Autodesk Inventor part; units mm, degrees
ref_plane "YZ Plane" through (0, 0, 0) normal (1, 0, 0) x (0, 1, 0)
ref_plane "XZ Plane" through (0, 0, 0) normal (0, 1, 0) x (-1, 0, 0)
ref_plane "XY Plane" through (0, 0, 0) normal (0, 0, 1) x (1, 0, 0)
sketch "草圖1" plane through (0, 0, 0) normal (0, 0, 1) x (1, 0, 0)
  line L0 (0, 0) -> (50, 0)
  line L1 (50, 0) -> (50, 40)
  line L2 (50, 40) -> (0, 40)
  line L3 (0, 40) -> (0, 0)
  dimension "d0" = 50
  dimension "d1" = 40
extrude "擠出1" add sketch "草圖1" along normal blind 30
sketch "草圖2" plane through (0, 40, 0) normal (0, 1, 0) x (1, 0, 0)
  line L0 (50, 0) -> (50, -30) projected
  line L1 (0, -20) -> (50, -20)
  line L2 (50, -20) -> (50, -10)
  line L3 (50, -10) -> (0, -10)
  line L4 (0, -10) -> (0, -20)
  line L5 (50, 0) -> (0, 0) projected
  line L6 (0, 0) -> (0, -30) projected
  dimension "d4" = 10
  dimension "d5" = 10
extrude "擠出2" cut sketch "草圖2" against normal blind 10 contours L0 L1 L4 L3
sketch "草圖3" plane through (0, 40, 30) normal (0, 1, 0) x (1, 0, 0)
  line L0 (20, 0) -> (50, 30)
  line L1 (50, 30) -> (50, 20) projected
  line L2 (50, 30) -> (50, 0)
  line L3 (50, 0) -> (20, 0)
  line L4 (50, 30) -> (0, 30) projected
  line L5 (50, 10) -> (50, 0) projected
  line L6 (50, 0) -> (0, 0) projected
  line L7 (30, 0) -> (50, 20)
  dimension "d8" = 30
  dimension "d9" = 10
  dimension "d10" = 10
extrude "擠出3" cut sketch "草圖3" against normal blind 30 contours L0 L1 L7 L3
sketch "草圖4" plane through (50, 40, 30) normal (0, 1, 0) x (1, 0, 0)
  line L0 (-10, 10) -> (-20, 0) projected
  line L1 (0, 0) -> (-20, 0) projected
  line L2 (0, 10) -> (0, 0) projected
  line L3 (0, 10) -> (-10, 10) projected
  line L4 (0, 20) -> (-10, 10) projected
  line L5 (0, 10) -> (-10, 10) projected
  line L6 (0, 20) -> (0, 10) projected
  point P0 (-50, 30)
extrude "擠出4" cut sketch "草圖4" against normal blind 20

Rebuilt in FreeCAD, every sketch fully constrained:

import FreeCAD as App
import Part
import Sketcher
from FreeCAD import Vector


def add_polygon(sketch, points):
    """Adds a closed chain of lines whose ends are joined by coincident constraints."""
    first, n = sketch.GeometryCount, len(points)
    for a, b in zip(points, points[1:] + points[:1]):
        sketch.addGeometry(Part.LineSegment(App.Vector(*a, 0), App.Vector(*b, 0)), False)
    for i in range(n):
        sketch.addConstraint(Sketcher.Constraint("Coincident", first + i, 2, first + (i + 1) % n, 1))

doc = App.newDocument("Part")
body = doc.addObject("PartDesign::Body", "Body")

sketch1 = body.newObject("Sketcher::SketchObject", "Sketch")
sketch1.AttachmentSupport = (doc.getObject("XY_Plane"), [""])
sketch1.MapMode = "FlatFace"
add_polygon(sketch1, [(0, 40), (0, 0), (50, 0), (50, 40)])
sketch1.addConstraint([
    Sketcher.Constraint("Vertical", 0),
    Sketcher.Constraint("Horizontal", 1),
    Sketcher.Constraint("Vertical", 2),
    Sketcher.Constraint("Horizontal", 3),
    Sketcher.Constraint("Coincident", 0, 2, -1, 1),
    Sketcher.Constraint("DistanceX", 1, 1, 1, 2, 50.0),
    Sketcher.Constraint("DistanceY", 0, 2, 0, 1, 40.0),
])
pad1 = body.newObject("PartDesign::Pad", "Pad")
pad1.Profile = sketch1
pad1.Length = 30

sketch2 = body.newObject("Sketcher::SketchObject", "Sketch001")
sketch2.AttachmentSupport = (doc.getObject("XZ_Plane"), [""])
sketch2.MapMode = "FlatFace"
sketch2.AttachmentOffset = App.Placement(Vector(0, 0, -40), App.Rotation())
add_polygon(sketch2, [(50, 20), (50, 10), (0, 10), (0, 20)])
sketch2.addConstraint([
    Sketcher.Constraint("Vertical", 0),
    Sketcher.Constraint("Horizontal", 1),
    Sketcher.Constraint("Vertical", 2),
    Sketcher.Constraint("Horizontal", 3),
    Sketcher.Constraint("PointOnObject", 1, 2, -2),
    Sketcher.Constraint("DistanceY", 0, 2, 0, 1, 10.0),
    Sketcher.Constraint("DistanceY", -1, 1, 0, 2, 10.0),
    Sketcher.Constraint("DistanceX", 1, 2, 1, 1, 50.0),
])
pocket1 = body.newObject("PartDesign::Pocket", "Pocket")
pocket1.Profile = sketch2
pocket1.Length = 10
pocket1.Reversed = True

sketch3 = body.newObject("Sketcher::SketchObject", "Sketch002")
sketch3.AttachmentSupport = (doc.getObject("XZ_Plane"), [""])
sketch3.MapMode = "FlatFace"
sketch3.AttachmentOffset = App.Placement(Vector(0, 0, -40), App.Rotation())
add_polygon(sketch3, [(50, 0), (20, 30), (30, 30), (50, 10)])
sketch3.addConstraint([
    Sketcher.Constraint("Horizontal", 1),
    Sketcher.Constraint("Vertical", 3),
    Sketcher.Constraint("PointOnObject", 3, 2, -1),
    Sketcher.Constraint("Parallel", 0, 2),
    Sketcher.Constraint("Equal", 1, 3),
    Sketcher.Constraint("DistanceX", 1, 1, 1, 2, 10.0),
    Sketcher.Constraint("DistanceY", -1, 1, 0, 2, 30.0),
    Sketcher.Constraint("DistanceX", -1, 1, 1, 2, 30.0),
])
pocket2 = body.newObject("PartDesign::Pocket", "Pocket001")
pocket2.Profile = sketch3
pocket2.Length = 30
pocket2.Reversed = True

sketch4 = body.newObject("Sketcher::SketchObject", "Sketch003")
sketch4.AttachmentSupport = (doc.getObject("XZ_Plane"), [""])
sketch4.MapMode = "FlatFace"
sketch4.AttachmentOffset = App.Placement(Vector(0, 0, -40), App.Rotation())
add_polygon(sketch4, [(50, 30), (50, 10), (30, 30)])
sketch4.addConstraint([
    Sketcher.Constraint("Vertical", 0),
    Sketcher.Constraint("Horizontal", 2),
    Sketcher.Constraint("Equal", 2, 0),
    Sketcher.Constraint("DistanceX", 2, 1, 2, 2, 20.0),
    Sketcher.Constraint("DistanceX", -1, 1, 0, 2, 50.0),
    Sketcher.Constraint("DistanceY", -1, 1, 0, 2, 10.0),
])
pocket3 = body.newObject("PartDesign::Pocket", "Pocket002")
pocket3.Profile = sketch4
pocket3.Length = 20
pocket3.Reversed = True

doc.recompute()
